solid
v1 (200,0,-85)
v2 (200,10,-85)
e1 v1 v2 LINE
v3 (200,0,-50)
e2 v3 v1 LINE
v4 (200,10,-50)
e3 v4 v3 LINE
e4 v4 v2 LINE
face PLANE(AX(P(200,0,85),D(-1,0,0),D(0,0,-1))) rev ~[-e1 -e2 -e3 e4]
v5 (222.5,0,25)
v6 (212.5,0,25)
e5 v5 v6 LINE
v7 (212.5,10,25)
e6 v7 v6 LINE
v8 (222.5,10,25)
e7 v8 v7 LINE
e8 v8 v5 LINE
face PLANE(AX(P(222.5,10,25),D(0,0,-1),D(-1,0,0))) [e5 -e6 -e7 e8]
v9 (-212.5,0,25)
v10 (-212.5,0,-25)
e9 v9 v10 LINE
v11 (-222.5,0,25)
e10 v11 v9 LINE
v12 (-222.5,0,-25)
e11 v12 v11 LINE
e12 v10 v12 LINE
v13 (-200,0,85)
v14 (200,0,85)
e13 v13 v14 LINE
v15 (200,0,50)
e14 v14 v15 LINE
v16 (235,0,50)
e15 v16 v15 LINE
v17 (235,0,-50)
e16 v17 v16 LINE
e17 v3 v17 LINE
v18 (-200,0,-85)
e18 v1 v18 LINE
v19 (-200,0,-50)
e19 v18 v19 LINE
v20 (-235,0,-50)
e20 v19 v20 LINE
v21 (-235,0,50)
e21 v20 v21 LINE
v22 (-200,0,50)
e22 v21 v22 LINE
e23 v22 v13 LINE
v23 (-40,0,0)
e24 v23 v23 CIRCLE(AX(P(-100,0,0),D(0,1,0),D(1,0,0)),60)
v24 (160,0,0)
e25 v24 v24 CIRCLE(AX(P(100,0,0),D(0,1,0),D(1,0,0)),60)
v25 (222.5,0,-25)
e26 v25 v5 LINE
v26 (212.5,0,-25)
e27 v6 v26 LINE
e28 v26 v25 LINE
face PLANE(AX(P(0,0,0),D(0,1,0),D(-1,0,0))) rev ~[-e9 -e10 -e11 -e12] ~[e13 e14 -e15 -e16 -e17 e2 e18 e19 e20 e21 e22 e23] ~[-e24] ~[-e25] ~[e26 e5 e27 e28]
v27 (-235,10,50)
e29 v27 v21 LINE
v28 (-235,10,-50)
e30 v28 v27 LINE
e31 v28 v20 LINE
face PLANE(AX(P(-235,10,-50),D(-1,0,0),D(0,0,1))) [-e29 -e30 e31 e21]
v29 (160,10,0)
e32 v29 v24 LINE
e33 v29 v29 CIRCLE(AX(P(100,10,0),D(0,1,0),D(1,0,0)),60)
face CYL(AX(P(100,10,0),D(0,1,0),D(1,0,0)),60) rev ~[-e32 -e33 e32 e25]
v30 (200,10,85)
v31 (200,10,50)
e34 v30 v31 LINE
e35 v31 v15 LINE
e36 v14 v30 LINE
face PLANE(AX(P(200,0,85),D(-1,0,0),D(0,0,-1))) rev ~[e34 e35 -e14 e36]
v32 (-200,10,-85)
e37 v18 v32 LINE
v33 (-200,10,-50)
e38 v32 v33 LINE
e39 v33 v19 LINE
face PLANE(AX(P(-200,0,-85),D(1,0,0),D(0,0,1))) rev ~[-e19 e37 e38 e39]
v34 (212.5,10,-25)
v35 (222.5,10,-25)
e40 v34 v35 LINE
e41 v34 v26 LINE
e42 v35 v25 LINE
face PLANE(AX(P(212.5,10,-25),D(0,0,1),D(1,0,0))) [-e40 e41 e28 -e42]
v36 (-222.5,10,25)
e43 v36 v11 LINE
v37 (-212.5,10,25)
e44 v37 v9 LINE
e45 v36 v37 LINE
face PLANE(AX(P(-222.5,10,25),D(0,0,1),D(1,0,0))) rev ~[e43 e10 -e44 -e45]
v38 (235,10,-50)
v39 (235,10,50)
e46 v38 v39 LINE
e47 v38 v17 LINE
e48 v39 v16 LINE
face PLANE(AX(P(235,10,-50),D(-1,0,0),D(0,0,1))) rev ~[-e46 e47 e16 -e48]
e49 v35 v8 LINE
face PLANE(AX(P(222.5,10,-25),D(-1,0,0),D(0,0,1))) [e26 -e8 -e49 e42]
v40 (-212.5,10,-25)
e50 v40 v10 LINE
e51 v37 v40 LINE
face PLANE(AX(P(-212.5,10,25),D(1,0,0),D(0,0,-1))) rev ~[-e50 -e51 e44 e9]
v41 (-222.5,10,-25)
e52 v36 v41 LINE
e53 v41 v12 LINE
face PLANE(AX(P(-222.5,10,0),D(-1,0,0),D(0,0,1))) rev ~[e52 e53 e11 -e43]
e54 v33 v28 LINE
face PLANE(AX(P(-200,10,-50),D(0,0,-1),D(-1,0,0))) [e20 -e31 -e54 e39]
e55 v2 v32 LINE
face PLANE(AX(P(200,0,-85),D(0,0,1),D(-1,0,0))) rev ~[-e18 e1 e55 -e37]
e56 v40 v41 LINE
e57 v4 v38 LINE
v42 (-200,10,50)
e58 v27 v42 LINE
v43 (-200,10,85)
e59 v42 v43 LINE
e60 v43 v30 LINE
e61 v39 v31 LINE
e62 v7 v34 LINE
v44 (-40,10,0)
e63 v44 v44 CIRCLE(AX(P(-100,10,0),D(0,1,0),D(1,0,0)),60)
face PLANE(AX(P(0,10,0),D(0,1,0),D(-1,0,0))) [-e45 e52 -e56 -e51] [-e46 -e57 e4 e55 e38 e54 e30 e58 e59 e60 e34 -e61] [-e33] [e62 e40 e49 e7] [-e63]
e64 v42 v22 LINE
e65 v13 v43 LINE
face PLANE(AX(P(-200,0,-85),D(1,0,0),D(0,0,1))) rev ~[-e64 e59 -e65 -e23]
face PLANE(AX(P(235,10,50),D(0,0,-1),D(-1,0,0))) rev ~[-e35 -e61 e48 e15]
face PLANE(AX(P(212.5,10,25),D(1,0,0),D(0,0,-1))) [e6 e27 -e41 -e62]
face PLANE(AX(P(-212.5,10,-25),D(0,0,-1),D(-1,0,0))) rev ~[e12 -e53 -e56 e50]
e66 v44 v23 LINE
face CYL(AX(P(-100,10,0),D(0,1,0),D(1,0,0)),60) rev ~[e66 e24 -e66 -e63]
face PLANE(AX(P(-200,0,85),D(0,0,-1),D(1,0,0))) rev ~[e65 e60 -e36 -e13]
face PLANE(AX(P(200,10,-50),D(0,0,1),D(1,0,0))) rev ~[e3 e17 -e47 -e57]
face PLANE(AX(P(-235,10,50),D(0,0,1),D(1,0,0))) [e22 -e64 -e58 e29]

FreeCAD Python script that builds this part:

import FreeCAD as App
import Part
import Sketcher

V = App.Vector
Q = App.Units.Quantity


def add_polygon(sketch, points):
    """Adds a closed chain of lines whose ends are joined by coincident constraints."""
    first, n = sketch.GeometryCount, len(points)
    for a, b in zip(points, points[1:] + points[:1]):
        sketch.addGeometry(Part.LineSegment(App.Vector(*a, 0), App.Vector(*b, 0)), False)
    for i in range(n):
        sketch.addConstraint(Sketcher.Constraint("Coincident", first + i, 2, first + (i + 1) % n, 1))

doc = App.newDocument("Part")
body = doc.addObject("PartDesign::Body", "Body")

sketch1 = doc.addObject("Sketcher::SketchObject", "Sketch")
body.addObject(sketch1)
sketch1.AttachmentSupport = (doc.XZ_Plane, [""])
sketch1.MapMode = "FlatFace"
add_polygon(sketch1, [(-200, -85), (-200, 85), (200, 85), (200, -85)])
sketch1.addConstraint([
    Sketcher.Constraint("Vertical", 0),
    Sketcher.Constraint("Horizontal", 1),
    Sketcher.Constraint("Vertical", 2),
    Sketcher.Constraint("Horizontal", 3),
    Sketcher.Constraint("Symmetric", 0, 2, 2, 2, -1, 1),
    Sketcher.Constraint("DistanceX", 1, 1, 1, 2, Q("400 mm")),
    Sketcher.Constraint("DistanceY", 0, 1, 0, 2, Q("170 mm")),
])
pad1 = doc.addObject("PartDesign::Pad", "Pad")
body.addObject(pad1)
pad1.Profile = sketch1
pad1.Length = 10
pad1.Reversed = True

sketch2 = doc.addObject("Sketcher::SketchObject", "Sketch001")
body.addObject(sketch2)
sketch2.AttachmentSupport = (doc.XZ_Plane, [""])
sketch2.MapMode = "FlatFace"
sketch2.AttachmentOffset = App.Placement(V(0, 0, -10), App.Rotation())
sketch2.addGeometry([
    Part.Circle(V(-100, 0, 0), V(0, 0, 1), 60),
    Part.Circle(V(100, 0, 0), V(0, 0, 1), 60),
], False)
sketch2.addConstraint([
    Sketcher.Constraint("Equal", 0, 1),
    Sketcher.Constraint("Symmetric", 0, 3, 1, 3, -1, 1),
    Sketcher.Constraint("PointOnObject", 0, 3, -1),
    Sketcher.Constraint("Diameter", 0, Q("120 mm")),
    Sketcher.Constraint("DistanceX", 0, 3, -1, 1, Q("100 mm")),
])
pocket1 = doc.addObject("PartDesign::Pocket", "Pocket")
body.addObject(pocket1)
pocket1.Profile = sketch2
pocket1.Length = 10
pocket1.Reversed = True

sketch3 = doc.addObject("Sketcher::SketchObject", "Sketch002")
body.addObject(sketch3)
sketch3.AttachmentSupport = (doc.XZ_Plane, [""])
sketch3.MapMode = "FlatFace"
sketch3.AttachmentOffset = App.Placement(V(0, 0, -10), App.Rotation())
add_polygon(sketch3, [(-200, 50), (-200, -50), (-235, -50), (-235, 50)])
add_polygon(sketch3, [(235, -50), (200, -50), (200, 50), (235, 50)])
sketch3.addConstraint([
    Sketcher.Constraint("Vertical", 0),
    Sketcher.Constraint("Horizontal", 1),
    Sketcher.Constraint("Vertical", 2),
    Sketcher.Constraint("Horizontal", 3),
    Sketcher.Constraint("Horizontal", 4),
    Sketcher.Constraint("Vertical", 5),
    Sketcher.Constraint("Horizontal", 6),
    Sketcher.Constraint("Vertical", 7),
    Sketcher.Constraint("Symmetric", 3, 2, 4, 2, -1, 1),
    Sketcher.Constraint("Symmetric", 1, 2, 6, 2, -1, 1),
    Sketcher.Constraint("Horizontal", 1, 2, 4, 2),
    Sketcher.Constraint("DistanceY", 0, 2, 0, 1, Q("100 mm")),
    Sketcher.Constraint("DistanceX", 1, 2, 1, 1, Q("35 mm")),
    Sketcher.Constraint("DistanceX", 0, 2, -1, 1, Q("200 mm")),
])
pad2 = doc.addObject("PartDesign::Pad", "Pad001")
body.addObject(pad2)
pad2.Profile = sketch3
pad2.Length = 10

sketch4 = doc.addObject("Sketcher::SketchObject", "Sketch003")
body.addObject(sketch4)
sketch4.AttachmentSupport = (doc.XZ_Plane, [""])
sketch4.MapMode = "FlatFace"
sketch4.AttachmentOffset = App.Placement(V(0, 0, -10), App.Rotation())
add_polygon(sketch4, [(-222.5, -25), (-222.5, 25), (-212.5, 25), (-212.5, -25)])
add_polygon(sketch4, [(212.5, 25), (222.5, 25), (222.5, -25), (212.5, -25)])
sketch4.addConstraint([
    Sketcher.Constraint("Vertical", 0),
    Sketcher.Constraint("Horizontal", 1),
    Sketcher.Constraint("Vertical", 2),
    Sketcher.Constraint("Horizontal", 3),
    Sketcher.Constraint("Horizontal", 4),
    Sketcher.Constraint("Vertical", 5),
    Sketcher.Constraint("Horizontal", 6),
    Sketcher.Constraint("Vertical", 7),
    Sketcher.Constraint("Symmetric", 3, 2, 4, 2, -1, 1),
    Sketcher.Constraint("Symmetric", 1, 2, 6, 2, -1, 1),
    Sketcher.Constraint("Horizontal", 1, 2, 4, 2),
    Sketcher.Constraint("DistanceX", 1, 1, 1, 2, Q("10 mm")),
    Sketcher.Constraint("DistanceY", 0, 1, 0, 2, Q("50 mm")),
    Sketcher.Constraint("DistanceX", 1, 2, 4, 2, Q("435 mm")),
])
pocket2 = doc.addObject("PartDesign::Pocket", "Pocket001")
body.addObject(pocket2)
pocket2.Profile = sketch4
pocket2.Length = 10
pocket2.Reversed = True

doc.recompute()
